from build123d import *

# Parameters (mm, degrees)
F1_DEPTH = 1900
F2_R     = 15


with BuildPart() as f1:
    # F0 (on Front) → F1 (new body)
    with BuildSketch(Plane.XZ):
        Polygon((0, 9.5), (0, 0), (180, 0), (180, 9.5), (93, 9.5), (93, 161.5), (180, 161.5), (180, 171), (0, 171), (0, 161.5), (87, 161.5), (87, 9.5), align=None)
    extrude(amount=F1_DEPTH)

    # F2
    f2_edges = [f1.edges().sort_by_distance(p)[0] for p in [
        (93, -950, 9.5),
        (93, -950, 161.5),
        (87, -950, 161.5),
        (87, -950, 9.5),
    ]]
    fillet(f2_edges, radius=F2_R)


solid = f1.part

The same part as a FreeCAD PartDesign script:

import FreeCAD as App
import Part
import Sketcher

V = App.Vector
Q = App.Units.Quantity


def edges_at(feature, points):
    """Names of the edges that pass closest to the given points."""
    edges = feature.Shape.Edges
    near = lambda p: min(range(len(edges)), key=lambda i: edges[i].distToShape(Part.Vertex(*p))[0])
    return sorted({f"Edge{near(p) + 1}" for p in points})


def add_polygon(sketch, points):
    """Adds a closed chain of lines whose ends are joined by coincident constraints."""
    first, n = sketch.GeometryCount, len(points)
    for a, b in zip(points, points[1:] + points[:1]):
        sketch.addGeometry(Part.LineSegment(App.Vector(*a, 0), App.Vector(*b, 0)), False)
    for i in range(n):
        sketch.addConstraint(Sketcher.Constraint("Coincident", first + i, 2, first + (i + 1) % n, 1))

doc = App.newDocument("Part")
body = doc.addObject("PartDesign::Body", "Body")

# Sketch on XZ plane
sketch1 = body.newObject("Sketcher::SketchObject", "Sketch")
sketch1.AttachmentSupport = (doc.getObject("XZ_Plane"), [""])
sketch1.MapMode = "FlatFace"
add_polygon(sketch1, [(0, 10), (0, 0), (180, 0), (180, 10), (93, 10), (93, 162), (180, 162), (180, 171), (0, 171), (0, 162), (87, 162), (87, 10)])  # lines 0-11
sketch1.addConstraint([
    Sketcher.Constraint("Vertical", 0),
    Sketcher.Constraint("Horizontal", 1),
    Sketcher.Constraint("Vertical", 2),
    Sketcher.Constraint("Horizontal", 3),
    Sketcher.Constraint("Vertical", 4),
    Sketcher.Constraint("Horizontal", 5),
    Sketcher.Constraint("Vertical", 6),
    Sketcher.Constraint("Horizontal", 7),
    Sketcher.Constraint("Vertical", 8),
    Sketcher.Constraint("Horizontal", 9),
    Sketcher.Constraint("Vertical", 10),
    Sketcher.Constraint("Horizontal", 11),
    Sketcher.Constraint("Coincident", 0, 2, -1, 1),
    Sketcher.Constraint("PointOnObject", 7, 2, -2),
    Sketcher.Constraint("Horizontal", 5, 2, 8, 2),
    Sketcher.Constraint("Horizontal", 3, 2, 10, 2),
    Sketcher.Constraint("Vertical", 2, 2, 5, 2),
    Sketcher.Constraint("Equal", 5, 9),
    Sketcher.Constraint("Equal", 2, 6),
    Sketcher.Constraint("DistanceX", 1, 1, 1, 2, Q("180 mm")),
    Sketcher.Constraint("DistanceX", 3, 2, 3, 1, Q("87 mm")),
    Sketcher.Constraint("DistanceY", 4, 1, 4, 2, Q("152 mm")),
    Sketcher.Constraint("DistanceY", 0, 2, 0, 1, Q("9.5 mm")),
])
pad1 = body.newObject("PartDesign::Pad", "Pad")
pad1.Profile = sketch1
pad1.Length = 1900
doc.recompute()

fillet = body.newObject("PartDesign::Fillet", "Fillet")
fillet.Base = (pad1, edges_at(pad1, [
    (93, -950, 9.5),
    (93, -950, 161.5),
    (87, -950, 161.5),
    (87, -950, 9.5),
]))
fillet.Radius = 15

doc.recompute()
